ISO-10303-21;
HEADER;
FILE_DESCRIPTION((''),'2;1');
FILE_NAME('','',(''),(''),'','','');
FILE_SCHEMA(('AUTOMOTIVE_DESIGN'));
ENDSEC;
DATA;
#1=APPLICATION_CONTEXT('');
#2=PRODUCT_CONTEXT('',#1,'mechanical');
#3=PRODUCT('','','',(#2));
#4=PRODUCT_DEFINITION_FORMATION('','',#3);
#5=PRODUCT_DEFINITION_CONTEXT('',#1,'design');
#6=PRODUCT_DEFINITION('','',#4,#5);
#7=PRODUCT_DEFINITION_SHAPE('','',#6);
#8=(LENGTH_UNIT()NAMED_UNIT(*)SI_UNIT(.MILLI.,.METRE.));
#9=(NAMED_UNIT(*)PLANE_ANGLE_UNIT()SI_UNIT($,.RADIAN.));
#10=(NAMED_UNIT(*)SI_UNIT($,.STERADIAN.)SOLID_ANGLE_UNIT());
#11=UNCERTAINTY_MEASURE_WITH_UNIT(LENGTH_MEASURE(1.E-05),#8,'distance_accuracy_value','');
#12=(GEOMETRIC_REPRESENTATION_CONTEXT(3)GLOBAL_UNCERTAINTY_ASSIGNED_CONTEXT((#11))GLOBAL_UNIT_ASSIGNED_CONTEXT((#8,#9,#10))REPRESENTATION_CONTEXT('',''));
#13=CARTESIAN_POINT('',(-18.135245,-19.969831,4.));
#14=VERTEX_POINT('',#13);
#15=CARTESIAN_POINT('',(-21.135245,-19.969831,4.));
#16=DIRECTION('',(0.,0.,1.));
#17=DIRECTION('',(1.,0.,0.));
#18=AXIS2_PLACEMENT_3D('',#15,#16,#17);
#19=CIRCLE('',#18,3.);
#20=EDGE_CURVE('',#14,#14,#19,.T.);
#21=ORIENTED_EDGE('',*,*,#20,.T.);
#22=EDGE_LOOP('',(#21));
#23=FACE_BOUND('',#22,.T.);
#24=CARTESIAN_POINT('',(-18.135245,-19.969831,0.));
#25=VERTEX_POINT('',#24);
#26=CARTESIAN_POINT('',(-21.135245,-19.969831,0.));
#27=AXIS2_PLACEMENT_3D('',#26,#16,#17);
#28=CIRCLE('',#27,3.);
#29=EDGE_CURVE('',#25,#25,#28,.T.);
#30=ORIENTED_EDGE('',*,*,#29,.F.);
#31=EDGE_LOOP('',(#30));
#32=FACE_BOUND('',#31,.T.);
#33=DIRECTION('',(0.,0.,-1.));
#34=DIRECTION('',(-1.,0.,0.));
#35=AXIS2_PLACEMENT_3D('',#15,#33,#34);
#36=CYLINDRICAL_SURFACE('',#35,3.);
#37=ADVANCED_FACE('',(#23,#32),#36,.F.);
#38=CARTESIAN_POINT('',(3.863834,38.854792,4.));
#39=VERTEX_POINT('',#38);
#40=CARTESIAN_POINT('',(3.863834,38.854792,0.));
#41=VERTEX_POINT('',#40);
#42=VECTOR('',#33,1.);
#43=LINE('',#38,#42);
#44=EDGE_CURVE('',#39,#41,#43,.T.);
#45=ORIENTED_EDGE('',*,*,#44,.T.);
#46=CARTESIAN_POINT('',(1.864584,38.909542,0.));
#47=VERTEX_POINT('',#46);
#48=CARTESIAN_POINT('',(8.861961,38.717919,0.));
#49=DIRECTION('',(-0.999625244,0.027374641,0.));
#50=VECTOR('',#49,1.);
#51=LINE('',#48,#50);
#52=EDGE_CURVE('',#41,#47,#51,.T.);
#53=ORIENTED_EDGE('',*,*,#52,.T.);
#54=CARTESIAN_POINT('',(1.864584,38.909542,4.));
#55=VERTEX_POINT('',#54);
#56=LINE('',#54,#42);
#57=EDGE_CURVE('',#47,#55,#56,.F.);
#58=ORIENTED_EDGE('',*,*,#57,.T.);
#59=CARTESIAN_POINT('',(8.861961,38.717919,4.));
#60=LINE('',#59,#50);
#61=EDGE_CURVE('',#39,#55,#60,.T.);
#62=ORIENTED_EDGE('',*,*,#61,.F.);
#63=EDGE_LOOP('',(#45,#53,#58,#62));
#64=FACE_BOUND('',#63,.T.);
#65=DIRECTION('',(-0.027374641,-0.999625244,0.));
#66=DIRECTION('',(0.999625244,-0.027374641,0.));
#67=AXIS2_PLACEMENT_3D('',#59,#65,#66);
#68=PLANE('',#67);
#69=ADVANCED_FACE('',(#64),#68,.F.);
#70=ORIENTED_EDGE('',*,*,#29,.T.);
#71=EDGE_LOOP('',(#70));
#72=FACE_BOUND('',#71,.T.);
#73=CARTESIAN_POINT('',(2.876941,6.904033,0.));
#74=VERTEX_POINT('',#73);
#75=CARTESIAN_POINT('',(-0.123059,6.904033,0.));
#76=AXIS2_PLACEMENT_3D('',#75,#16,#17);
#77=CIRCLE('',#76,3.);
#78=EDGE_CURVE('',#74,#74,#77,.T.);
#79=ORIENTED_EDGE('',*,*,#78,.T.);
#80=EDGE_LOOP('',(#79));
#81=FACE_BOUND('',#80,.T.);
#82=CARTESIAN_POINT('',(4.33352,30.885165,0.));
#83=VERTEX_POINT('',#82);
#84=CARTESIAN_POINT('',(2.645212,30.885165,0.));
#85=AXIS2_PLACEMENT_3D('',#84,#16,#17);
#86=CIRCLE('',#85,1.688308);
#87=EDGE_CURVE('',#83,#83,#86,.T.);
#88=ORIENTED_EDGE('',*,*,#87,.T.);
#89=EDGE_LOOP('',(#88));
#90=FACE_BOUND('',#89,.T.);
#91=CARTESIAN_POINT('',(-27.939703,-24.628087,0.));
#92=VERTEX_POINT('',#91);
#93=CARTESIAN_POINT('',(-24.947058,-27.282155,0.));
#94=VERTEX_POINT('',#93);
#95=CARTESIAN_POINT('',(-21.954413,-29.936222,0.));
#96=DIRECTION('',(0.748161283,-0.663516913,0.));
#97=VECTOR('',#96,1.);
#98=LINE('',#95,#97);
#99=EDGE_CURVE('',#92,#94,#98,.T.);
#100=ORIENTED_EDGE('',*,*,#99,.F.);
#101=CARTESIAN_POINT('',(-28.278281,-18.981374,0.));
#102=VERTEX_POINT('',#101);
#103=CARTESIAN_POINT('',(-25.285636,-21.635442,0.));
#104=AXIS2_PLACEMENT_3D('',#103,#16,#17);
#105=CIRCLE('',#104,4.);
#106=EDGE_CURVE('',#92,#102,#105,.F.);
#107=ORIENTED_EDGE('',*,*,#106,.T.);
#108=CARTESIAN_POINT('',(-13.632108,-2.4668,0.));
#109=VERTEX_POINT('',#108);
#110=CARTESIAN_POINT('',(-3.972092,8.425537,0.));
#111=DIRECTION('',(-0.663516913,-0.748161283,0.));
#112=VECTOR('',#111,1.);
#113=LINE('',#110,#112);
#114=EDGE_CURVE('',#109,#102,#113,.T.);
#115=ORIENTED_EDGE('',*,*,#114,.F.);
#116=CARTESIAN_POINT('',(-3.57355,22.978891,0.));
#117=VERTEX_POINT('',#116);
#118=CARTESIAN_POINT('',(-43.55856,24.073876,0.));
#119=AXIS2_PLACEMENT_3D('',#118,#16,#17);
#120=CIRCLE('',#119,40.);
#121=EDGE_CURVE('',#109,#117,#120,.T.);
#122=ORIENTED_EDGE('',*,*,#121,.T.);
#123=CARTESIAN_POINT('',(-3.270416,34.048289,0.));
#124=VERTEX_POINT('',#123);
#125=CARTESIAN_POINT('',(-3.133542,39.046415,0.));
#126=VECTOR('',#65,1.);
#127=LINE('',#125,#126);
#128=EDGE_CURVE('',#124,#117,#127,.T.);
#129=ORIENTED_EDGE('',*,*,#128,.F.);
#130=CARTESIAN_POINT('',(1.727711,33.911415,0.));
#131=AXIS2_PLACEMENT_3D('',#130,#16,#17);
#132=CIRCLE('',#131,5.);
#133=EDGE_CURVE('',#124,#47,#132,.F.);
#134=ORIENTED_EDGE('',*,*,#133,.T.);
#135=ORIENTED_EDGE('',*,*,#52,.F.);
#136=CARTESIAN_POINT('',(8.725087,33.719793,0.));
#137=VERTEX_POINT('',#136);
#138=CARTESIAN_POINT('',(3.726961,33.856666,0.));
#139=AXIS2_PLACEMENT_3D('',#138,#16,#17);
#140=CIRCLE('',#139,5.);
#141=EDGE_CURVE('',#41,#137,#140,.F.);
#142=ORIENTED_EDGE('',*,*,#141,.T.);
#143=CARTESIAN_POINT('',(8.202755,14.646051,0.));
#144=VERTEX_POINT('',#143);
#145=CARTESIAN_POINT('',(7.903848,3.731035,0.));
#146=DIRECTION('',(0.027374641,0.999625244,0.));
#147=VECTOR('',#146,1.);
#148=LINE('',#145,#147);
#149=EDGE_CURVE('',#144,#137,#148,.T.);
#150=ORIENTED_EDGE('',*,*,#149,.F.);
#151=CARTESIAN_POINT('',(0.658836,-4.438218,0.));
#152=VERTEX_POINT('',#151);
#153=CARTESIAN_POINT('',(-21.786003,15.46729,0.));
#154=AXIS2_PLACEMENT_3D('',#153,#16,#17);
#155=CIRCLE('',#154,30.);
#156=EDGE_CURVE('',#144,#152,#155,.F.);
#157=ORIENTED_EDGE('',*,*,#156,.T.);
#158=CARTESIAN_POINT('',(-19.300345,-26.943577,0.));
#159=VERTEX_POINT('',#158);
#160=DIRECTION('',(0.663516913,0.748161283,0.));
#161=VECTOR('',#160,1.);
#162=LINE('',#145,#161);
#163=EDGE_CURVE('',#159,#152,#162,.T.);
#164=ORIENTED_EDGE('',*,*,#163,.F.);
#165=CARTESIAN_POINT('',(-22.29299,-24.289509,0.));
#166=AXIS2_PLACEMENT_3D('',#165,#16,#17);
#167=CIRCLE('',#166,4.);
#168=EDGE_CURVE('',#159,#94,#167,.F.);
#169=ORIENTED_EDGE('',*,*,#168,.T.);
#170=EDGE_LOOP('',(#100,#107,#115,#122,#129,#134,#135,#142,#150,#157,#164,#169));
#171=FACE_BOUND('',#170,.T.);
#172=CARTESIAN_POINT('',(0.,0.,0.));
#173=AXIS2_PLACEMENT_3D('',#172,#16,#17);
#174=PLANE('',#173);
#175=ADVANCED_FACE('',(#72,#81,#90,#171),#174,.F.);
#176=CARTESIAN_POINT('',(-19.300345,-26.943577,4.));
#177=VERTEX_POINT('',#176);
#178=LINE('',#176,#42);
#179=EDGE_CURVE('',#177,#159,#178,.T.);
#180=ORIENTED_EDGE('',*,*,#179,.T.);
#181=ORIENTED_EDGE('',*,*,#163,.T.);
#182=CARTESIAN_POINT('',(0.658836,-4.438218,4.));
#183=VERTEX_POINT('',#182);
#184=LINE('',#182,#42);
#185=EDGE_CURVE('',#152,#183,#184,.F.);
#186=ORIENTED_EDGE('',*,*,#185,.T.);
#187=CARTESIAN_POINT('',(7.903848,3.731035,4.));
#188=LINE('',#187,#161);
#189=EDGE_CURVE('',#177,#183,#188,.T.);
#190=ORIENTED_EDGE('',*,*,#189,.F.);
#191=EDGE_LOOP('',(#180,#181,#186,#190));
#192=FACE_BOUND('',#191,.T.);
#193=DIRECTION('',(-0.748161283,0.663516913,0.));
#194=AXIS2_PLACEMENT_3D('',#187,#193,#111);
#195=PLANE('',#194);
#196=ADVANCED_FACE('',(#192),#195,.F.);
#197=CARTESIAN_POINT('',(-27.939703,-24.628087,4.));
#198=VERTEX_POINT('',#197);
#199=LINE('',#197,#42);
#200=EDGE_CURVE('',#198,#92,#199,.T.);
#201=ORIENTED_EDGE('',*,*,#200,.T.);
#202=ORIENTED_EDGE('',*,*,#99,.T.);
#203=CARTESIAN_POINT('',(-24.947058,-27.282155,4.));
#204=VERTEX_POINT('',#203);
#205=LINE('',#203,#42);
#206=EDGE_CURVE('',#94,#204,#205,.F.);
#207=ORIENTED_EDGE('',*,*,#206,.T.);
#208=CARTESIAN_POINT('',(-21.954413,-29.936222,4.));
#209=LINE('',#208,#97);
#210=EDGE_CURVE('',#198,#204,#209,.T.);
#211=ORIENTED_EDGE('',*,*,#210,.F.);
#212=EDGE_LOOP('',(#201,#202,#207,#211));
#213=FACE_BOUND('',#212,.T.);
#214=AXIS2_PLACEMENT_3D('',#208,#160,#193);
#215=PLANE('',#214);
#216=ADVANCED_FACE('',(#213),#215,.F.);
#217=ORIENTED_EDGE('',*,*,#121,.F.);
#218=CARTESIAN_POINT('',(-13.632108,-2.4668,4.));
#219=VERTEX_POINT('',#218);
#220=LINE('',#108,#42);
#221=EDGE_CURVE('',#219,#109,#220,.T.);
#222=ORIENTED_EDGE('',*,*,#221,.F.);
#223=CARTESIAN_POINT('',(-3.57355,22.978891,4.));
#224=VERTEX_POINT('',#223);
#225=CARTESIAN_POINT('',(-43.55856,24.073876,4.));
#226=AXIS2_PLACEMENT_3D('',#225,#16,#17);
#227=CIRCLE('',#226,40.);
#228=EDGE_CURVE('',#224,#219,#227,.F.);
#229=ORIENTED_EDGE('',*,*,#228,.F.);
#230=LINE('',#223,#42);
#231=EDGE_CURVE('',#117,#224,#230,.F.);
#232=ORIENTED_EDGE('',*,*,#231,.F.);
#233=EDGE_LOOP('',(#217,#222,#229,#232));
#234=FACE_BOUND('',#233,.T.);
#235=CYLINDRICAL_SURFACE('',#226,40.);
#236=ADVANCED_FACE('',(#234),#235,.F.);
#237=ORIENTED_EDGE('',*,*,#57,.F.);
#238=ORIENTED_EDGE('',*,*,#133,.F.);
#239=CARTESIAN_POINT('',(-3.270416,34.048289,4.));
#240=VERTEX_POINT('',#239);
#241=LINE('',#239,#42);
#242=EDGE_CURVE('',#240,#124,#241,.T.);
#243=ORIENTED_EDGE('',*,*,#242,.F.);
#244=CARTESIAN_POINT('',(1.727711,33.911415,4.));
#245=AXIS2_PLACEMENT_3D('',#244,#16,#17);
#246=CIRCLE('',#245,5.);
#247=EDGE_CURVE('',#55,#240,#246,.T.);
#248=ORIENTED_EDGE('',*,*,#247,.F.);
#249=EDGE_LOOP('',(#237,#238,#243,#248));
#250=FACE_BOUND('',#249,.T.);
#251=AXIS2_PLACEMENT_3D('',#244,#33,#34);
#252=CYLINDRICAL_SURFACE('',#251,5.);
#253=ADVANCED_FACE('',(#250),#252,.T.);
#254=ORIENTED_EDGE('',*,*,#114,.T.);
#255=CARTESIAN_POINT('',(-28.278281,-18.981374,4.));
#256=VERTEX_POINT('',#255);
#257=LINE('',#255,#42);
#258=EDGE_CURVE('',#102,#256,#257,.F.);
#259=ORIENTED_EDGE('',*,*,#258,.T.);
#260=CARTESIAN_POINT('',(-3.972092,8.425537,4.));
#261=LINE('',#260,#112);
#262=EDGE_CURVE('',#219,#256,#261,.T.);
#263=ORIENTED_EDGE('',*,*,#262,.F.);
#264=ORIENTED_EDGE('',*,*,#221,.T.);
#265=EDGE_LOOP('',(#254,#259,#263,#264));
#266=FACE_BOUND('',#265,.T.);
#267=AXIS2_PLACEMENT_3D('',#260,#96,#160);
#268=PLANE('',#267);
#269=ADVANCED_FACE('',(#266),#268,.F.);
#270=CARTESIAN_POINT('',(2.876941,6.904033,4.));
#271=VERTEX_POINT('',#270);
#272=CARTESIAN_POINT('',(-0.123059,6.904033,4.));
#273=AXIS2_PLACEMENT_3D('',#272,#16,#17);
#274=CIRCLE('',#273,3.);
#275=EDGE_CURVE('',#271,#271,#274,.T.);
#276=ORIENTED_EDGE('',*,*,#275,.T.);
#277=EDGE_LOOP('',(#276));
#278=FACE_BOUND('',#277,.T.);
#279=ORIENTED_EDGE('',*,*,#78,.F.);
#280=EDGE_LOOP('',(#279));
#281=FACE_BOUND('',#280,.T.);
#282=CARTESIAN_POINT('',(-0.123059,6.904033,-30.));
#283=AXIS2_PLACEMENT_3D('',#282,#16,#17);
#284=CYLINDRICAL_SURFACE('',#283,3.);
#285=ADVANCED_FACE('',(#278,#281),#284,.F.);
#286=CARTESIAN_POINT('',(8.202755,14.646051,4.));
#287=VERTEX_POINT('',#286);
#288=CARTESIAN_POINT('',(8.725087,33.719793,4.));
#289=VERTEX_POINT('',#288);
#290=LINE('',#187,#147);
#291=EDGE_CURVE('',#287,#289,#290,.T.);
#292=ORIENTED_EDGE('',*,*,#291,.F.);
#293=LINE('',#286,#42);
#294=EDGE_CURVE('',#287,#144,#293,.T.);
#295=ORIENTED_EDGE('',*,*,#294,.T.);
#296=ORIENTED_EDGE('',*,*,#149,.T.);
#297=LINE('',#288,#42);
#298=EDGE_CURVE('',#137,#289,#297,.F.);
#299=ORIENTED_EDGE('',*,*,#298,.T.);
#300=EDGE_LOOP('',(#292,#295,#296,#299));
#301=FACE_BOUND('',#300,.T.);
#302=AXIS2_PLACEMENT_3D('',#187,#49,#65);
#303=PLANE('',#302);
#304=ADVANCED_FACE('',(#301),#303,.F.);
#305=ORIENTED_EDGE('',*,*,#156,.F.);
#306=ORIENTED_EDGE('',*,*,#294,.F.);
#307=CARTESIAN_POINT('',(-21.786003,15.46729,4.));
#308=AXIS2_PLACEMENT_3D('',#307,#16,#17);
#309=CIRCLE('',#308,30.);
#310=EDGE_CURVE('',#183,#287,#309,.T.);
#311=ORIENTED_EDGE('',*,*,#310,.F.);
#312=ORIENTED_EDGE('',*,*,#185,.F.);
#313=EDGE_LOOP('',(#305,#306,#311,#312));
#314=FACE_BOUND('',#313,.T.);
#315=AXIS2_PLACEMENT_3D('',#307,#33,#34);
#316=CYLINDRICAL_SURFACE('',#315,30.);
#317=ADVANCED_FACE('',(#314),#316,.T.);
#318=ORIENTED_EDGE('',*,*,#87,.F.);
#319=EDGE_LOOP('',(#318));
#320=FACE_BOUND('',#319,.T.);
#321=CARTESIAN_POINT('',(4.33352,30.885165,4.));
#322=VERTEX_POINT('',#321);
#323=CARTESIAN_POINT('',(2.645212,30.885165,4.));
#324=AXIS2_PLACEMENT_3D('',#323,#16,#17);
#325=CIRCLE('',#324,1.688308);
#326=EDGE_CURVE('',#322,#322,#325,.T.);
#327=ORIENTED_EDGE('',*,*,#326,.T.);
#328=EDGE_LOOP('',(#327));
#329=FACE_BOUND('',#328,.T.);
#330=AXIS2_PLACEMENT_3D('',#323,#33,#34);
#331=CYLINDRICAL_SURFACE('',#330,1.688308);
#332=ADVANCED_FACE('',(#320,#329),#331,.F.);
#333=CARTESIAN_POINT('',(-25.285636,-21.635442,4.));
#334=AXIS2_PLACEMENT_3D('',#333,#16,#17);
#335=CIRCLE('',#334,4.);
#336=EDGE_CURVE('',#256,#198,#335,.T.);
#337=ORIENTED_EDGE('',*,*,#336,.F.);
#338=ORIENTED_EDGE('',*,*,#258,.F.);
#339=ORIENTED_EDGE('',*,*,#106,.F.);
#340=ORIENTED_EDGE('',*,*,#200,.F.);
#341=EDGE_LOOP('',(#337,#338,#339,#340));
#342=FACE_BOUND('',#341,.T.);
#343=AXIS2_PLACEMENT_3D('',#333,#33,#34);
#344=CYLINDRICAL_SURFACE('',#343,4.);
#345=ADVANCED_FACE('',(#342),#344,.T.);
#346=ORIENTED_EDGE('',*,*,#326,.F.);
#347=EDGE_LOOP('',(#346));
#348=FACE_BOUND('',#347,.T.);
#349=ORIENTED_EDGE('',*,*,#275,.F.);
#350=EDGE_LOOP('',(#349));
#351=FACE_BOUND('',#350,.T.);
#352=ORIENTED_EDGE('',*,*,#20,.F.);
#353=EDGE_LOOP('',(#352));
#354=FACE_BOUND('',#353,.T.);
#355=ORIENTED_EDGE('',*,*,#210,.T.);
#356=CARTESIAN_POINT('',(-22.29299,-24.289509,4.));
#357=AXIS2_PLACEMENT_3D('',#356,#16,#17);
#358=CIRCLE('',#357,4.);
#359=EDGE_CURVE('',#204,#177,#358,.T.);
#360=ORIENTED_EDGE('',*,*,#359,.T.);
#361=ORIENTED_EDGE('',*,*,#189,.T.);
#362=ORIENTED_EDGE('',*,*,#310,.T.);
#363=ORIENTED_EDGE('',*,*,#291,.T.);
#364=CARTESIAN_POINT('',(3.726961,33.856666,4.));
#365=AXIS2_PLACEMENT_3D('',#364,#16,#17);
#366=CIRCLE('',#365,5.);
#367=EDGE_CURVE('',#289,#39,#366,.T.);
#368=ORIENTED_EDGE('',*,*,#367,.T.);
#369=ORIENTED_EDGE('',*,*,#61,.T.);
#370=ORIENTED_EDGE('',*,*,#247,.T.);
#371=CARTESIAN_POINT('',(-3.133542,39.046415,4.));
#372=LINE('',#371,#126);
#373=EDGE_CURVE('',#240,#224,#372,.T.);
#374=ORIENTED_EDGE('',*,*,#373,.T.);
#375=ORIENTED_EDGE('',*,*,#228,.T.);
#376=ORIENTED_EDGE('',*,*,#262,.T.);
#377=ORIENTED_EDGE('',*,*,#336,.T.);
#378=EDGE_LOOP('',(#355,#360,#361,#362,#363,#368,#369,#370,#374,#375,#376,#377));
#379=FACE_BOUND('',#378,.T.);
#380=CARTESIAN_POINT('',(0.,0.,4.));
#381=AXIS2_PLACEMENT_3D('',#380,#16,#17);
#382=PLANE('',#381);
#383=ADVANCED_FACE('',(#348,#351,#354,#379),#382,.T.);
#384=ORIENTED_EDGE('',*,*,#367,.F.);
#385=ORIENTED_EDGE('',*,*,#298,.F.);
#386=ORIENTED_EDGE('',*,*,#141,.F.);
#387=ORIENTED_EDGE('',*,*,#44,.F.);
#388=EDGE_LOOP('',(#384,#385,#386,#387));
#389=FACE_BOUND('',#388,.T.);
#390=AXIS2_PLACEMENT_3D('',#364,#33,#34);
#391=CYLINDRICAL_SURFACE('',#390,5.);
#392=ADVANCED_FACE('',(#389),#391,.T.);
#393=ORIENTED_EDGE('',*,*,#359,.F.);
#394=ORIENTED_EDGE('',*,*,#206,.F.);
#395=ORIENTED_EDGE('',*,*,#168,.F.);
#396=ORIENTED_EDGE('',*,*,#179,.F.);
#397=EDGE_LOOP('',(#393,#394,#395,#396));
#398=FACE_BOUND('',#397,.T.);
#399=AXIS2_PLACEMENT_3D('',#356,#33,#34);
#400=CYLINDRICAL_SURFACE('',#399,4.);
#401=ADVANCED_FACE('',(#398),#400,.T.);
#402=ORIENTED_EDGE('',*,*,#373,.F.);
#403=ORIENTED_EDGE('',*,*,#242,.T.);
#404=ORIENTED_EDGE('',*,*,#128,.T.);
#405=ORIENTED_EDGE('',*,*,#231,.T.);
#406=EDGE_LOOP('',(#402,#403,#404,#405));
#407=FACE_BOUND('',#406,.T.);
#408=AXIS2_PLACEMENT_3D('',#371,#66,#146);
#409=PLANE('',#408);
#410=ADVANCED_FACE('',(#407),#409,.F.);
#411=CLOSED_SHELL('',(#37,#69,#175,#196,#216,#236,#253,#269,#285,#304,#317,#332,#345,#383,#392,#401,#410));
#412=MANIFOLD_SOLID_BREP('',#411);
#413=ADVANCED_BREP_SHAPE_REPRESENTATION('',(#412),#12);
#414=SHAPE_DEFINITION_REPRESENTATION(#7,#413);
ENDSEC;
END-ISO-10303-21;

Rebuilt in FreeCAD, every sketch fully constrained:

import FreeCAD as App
import Part
import Sketcher
from FreeCAD import Vector
Q = App.Units.Quantity


def edges_at(feature, points):
    """Names of the edges that pass closest to the given points."""
    edges = feature.Shape.Edges
    near = lambda p: min(range(len(edges)), key=lambda i: edges[i].distToShape(Part.Vertex(*p))[0])
    return sorted({f"Edge{near(p) + 1}" for p in points})


def add_polygon(sketch, points):
    """Adds a closed chain of lines whose ends are joined by coincident constraints."""
    first, n = sketch.GeometryCount, len(points)
    for a, b in zip(points, points[1:] + points[:1]):
        sketch.addGeometry(Part.LineSegment(App.Vector(*a, 0), App.Vector(*b, 0)), False)
    for i in range(n):
        sketch.addConstraint(Sketcher.Constraint("Coincident", first + i, 2, first + (i + 1) % n, 1))

doc = App.newDocument("Part")
body = doc.addObject("PartDesign::Body", "Body")

sketch1 = body.newObject("Sketcher::SketchObject", "Sketch")
sketch1.AttachmentSupport = (doc.getObject("XY_Plane"), [""])
sketch1.MapMode = "FlatFace"
add_polygon(sketch1, [(-22, -29.9), (7.9, 3.7), (8.9, 38.7), (-3.1, 39), (-4, 8.4), (-30.9, -22)])
sketch1.addGeometry(Part.Circle(Vector(-21.1, -20, 0), Vector(0, 0, 1), 3), False)
sketch1.addGeometry(Part.Circle(Vector(2.6, 30.9, 0), Vector(0, 0, 1), 1.7), False)
sketch1.addConstraint([
    Sketcher.Constraint("Perpendicular", 1, 2),
    Sketcher.Constraint("Perpendicular", 2, 3),
    Sketcher.Constraint("Parallel", 0, 4),
    Sketcher.Constraint("Perpendicular", 4, 5),
    Sketcher.Constraint("Equal", 2, 5),
    Sketcher.Constraint("Diameter", 6, Q("6 mm")),
    Sketcher.Constraint("Distance", 0, Q("45 mm")),
    Sketcher.Constraint("Distance", 1, Q("35 mm")),
    Sketcher.Constraint("Distance", 2, Q("12 mm")),
    Sketcher.Constraint("Diameter", 7, Q("3.376616 mm")),
    Sketcher.Constraint("DistanceY", 0, 2, 3, 2, Q("4.694502 mm")),
    Sketcher.Constraint("DistanceY", 6, 3, -1, 1, Q("19.969831 mm")),
    Sketcher.Constraint("DistanceX", -1, 1, 7, 3, Q("2.645212 mm")),
    Sketcher.Constraint("DistanceX", -1, 1, 0, 2, Q("7.903848 mm")),
    Sketcher.Constraint("DistanceX", -1, 1, 1, 2, Q("8.861961 mm")),
    Sketcher.Constraint("DistanceY", -1, 1, 1, 2, Q("38.717919 mm")),
    Sketcher.Constraint("DistanceY", 0, 2, 7, 3, Q("27.154129 mm")),
    Sketcher.Constraint("DistanceX", 6, 3, -1, 1, Q("21.135245 mm")),
])
pad1 = body.newObject("PartDesign::Pad", "Pad")
pad1.Profile = sketch1
pad1.Length = 4
doc.recompute()

fillet = body.newObject("PartDesign::Fillet", "Fillet")
fillet.Base = (pad1, edges_at(pad1, [(-30.932, -21.974, 2), (-21.954, -29.936, 2)]))
fillet.Radius = 4
doc.recompute()

fillet2 = body.newObject("PartDesign::Fillet", "Fillet001")
fillet2.Base = (fillet, edges_at(fillet, [(7.904, 3.731, 2)]))
fillet2.Radius = 30
doc.recompute()

fillet3 = body.newObject("PartDesign::Fillet", "Fillet002")
fillet3.Base = (fillet2, edges_at(fillet2, [(-3.972, 8.426, 2)]))
fillet3.Radius = 40
doc.recompute()

fillet4 = body.newObject("PartDesign::Fillet", "Fillet003")
fillet4.Base = (fillet3, edges_at(fillet3, [(-3.134, 39.046, 2), (8.862, 38.718, 2)]))
fillet4.Radius = 5

sketch2 = body.newObject("Sketcher::SketchObject", "Sketch001")
sketch2.AttachmentSupport = (doc.getObject("XY_Plane"), [""])
sketch2.MapMode = "FlatFace"
sketch2.AttachmentOffset = App.Placement(Vector(0, 0, 4), App.Rotation())
sketch2.addGeometry(Part.Circle(Vector(-0.1, 6.9, 0), Vector(0, 0, 1), 3), False)
sketch2.addConstraint([
    Sketcher.Constraint("Diameter", 0, Q("6 mm")),
    Sketcher.Constraint("DistanceX", 0, 3, -1, 1, Q("0.123059 mm")),
    Sketcher.Constraint("DistanceY", -1, 1, 0, 3, Q("6.904033 mm")),
])
pocket1 = body.newObject("PartDesign::Pocket", "Pocket")
pocket1.Profile = sketch2
pocket1.Length = 34

doc.recompute()
